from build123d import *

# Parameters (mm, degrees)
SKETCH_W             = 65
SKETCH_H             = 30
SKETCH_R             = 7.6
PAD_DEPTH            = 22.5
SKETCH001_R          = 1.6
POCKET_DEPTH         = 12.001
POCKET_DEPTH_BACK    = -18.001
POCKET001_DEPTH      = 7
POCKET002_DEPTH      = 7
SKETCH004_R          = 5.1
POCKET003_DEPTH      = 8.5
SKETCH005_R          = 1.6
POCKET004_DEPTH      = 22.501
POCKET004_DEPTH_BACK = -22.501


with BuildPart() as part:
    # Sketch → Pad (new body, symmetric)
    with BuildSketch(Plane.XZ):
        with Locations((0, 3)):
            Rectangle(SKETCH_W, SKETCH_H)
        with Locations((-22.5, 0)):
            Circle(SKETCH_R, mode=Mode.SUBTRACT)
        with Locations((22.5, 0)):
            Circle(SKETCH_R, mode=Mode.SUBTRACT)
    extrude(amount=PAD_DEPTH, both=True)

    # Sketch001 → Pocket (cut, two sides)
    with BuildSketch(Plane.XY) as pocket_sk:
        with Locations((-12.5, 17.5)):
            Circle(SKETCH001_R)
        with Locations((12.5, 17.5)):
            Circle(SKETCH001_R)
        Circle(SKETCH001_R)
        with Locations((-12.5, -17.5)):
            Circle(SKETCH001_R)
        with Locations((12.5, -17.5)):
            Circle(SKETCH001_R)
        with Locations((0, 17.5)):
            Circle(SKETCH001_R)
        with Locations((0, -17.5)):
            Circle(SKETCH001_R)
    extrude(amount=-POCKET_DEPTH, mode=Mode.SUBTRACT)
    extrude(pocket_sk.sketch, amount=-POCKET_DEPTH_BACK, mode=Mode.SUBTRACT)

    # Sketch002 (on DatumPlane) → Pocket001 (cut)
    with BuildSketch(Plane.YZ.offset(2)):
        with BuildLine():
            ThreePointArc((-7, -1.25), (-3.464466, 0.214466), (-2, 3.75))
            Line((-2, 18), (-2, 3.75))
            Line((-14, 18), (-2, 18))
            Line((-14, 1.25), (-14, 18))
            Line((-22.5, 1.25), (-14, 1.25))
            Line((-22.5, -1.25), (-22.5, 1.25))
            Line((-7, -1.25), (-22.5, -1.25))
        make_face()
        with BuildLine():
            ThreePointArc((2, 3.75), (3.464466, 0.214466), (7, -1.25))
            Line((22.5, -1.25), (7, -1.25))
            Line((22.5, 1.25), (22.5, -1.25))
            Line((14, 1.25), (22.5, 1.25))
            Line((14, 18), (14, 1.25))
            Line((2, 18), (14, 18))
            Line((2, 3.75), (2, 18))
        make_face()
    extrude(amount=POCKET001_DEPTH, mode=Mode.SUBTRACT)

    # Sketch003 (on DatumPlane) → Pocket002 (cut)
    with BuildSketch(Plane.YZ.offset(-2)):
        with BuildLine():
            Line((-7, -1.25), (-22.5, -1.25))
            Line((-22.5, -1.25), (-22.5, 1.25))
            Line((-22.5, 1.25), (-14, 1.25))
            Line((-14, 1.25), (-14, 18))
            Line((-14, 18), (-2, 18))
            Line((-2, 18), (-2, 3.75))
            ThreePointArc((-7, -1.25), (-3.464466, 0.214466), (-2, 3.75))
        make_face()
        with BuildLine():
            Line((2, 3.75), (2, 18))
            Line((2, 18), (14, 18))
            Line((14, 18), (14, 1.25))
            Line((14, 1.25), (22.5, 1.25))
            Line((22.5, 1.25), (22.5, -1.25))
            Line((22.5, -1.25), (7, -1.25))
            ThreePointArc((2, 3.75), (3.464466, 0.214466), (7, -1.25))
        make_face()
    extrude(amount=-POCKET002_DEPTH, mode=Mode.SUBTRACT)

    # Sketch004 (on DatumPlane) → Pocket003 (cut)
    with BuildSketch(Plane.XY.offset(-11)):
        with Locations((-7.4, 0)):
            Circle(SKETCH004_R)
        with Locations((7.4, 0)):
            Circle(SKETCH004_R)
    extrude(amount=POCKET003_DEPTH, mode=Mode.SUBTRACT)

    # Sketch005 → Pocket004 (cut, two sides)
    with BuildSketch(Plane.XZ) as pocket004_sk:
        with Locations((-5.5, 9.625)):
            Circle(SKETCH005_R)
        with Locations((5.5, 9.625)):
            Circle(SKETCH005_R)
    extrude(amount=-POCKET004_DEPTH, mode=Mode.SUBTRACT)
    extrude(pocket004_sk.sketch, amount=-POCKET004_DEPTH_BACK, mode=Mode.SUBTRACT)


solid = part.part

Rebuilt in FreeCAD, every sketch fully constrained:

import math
import FreeCAD as App
import Part
import Sketcher

doc = App.newDocument("Part")
body = doc.addObject("PartDesign::Body", "Body")

# Sketch on XZ plane
sketch1 = doc.addObject("Sketcher::SketchObject", "Sketch")
body.addObject(sketch1)
sketch1.AttachmentSupport = (doc.XZ_Plane, [""])
sketch1.MapMode = "FlatFace"
sketch1.addGeometry(Part.LineSegment(App.Vector(-32, 18, 0), App.Vector(-32, -12, 0)), False)
sketch1.addGeometry(Part.LineSegment(App.Vector(-32, -12, 0), App.Vector(32, -12, 0)), False)
sketch1.addGeometry(Part.LineSegment(App.Vector(32, -12, 0), App.Vector(32, 18, 0)), False)
sketch1.addGeometry(Part.LineSegment(App.Vector(32, 18, 0), App.Vector(-32, 18, 0)), False)
sketch1.addGeometry(Part.Circle(App.Vector(-22, 0, 0), App.Vector(0, 0, 1), 8), False)
sketch1.addGeometry(Part.Circle(App.Vector(22, 0, 0), App.Vector(0, 0, 1), 8), False)
sketch1.addConstraint(Sketcher.Constraint("Coincident", 0, 2, 1, 1))
sketch1.addConstraint(Sketcher.Constraint("Coincident", 1, 2, 2, 1))
sketch1.addConstraint(Sketcher.Constraint("Coincident", 2, 2, 3, 1))
sketch1.addConstraint(Sketcher.Constraint("Coincident", 3, 2, 0, 1))
sketch1.addConstraint(Sketcher.Constraint("Vertical", 0))
sketch1.addConstraint(Sketcher.Constraint("Horizontal", 1))
sketch1.addConstraint(Sketcher.Constraint("Vertical", 2))
sketch1.addConstraint(Sketcher.Constraint("Horizontal", 3))
sketch1.addConstraint(Sketcher.Constraint("Equal", 4, 5))
sketch1.addConstraint(Sketcher.Constraint("Symmetric", 4, 3, 5, 3, -1, 1))
sketch1.addConstraint(Sketcher.Constraint("PointOnObject", 4, 3, -1))
sketch1.addConstraint(Sketcher.Constraint("Diameter", 4, 15.2))
sketch1.addConstraint(Sketcher.Constraint("DistanceX", 1, 1, 1, 2, 65.0))
sketch1.addConstraint(Sketcher.Constraint("DistanceY", 0, 2, 0, 1, 30.0))
sketch1.addConstraint(Sketcher.Constraint("DistanceY", 0, 2, -1, 1, 12.0))
sketch1.addConstraint(Sketcher.Constraint("DistanceX", 4, 3, 5, 3, 45.0))
sketch1.addConstraint(Sketcher.Constraint("DistanceX", 0, 2, 4, 3, 10.0))
pad1 = doc.addObject("PartDesign::Pad", "Pad")
body.addObject(pad1)
pad1.Profile = sketch1
pad1.Length = 45
pad1.Midplane = True

# Sketch on XY plane
sketch2 = doc.addObject("Sketcher::SketchObject", "Sketch001")
body.addObject(sketch2)
sketch2.AttachmentSupport = (doc.XY_Plane, [""])
sketch2.MapMode = "FlatFace"
sketch2.addGeometry(Part.Circle(App.Vector(-12.5, 17.5, 0), App.Vector(0, 0, 1), 1.6), False)
sketch2.addGeometry(Part.Circle(App.Vector(12.5, 17.5, 0), App.Vector(0, 0, 1), 1.6), False)
sketch2.addGeometry(Part.Circle(App.Vector(0, 0, 0), App.Vector(0, 0, 1), 1.6), False)
sketch2.addGeometry(Part.Circle(App.Vector(-12.5, -17.5, 0), App.Vector(0, 0, 1), 1.6), False)
sketch2.addGeometry(Part.Circle(App.Vector(12.5, -17.5, 0), App.Vector(0, 0, 1), 1.6), False)
sketch2.addGeometry(Part.Circle(App.Vector(0, 17.5, 0), App.Vector(0, 0, 1), 1.6), False)
sketch2.addGeometry(Part.Circle(App.Vector(0, -17.5, 0), App.Vector(0, 0, 1), 1.6), False)
sketch2.addConstraint(Sketcher.Constraint("Coincident", 2, 3, -1, 1))
sketch2.addConstraint(Sketcher.Constraint("Equal", 0, 1))
sketch2.addConstraint(Sketcher.Constraint("Equal", 1, 2))
sketch2.addConstraint(Sketcher.Constraint("Equal", 2, 3))
sketch2.addConstraint(Sketcher.Constraint("Equal", 3, 4))
sketch2.addConstraint(Sketcher.Constraint("Equal", 4, 5))
sketch2.addConstraint(Sketcher.Constraint("Equal", 5, 6))
sketch2.addConstraint(Sketcher.Constraint("Symmetric", 1, 3, 3, 3, -1, 1))
sketch2.addConstraint(Sketcher.Constraint("Symmetric", 0, 3, 4, 3, -1, 1))
sketch2.addConstraint(Sketcher.Constraint("Symmetric", 5, 3, 6, 3, -1, 1))
sketch2.addConstraint(Sketcher.Constraint("Symmetric", 0, 3, 1, 3, -2))
sketch2.addConstraint(Sketcher.Constraint("PointOnObject", 5, 3, -2))
sketch2.addConstraint(Sketcher.Constraint("Horizontal", 1, 3, 5, 3))
sketch2.addConstraint(Sketcher.Constraint("Diameter", 0, 3.2))
sketch2.addConstraint(Sketcher.Constraint("DistanceX", 0, 3, 1, 3, 25.0))
sketch2.addConstraint(Sketcher.Constraint("DistanceY", 3, 3, 0, 3, 35.0))
pocket1 = doc.addObject("PartDesign::Pocket", "Pocket")
body.addObject(pocket1)
pocket1.Profile = sketch2
pocket1.Type = "ThroughAll"
pocket1.Midplane = True

# Sketch on YZ plane
sketch3 = doc.addObject("Sketcher::SketchObject", "Sketch002")
body.addObject(sketch3)
sketch3.AttachmentSupport = (doc.YZ_Plane, [""])
sketch3.MapMode = "FlatFace"
sketch3.AttachmentOffset = App.Placement(App.Vector(0, 0, 2), App.Rotation())
sketch3.addGeometry(Part.ArcOfCircle(Part.Circle(App.Vector(-7, 3.7, 0), App.Vector(0, 0, 1), 5), math.radians(-90), math.radians(0)), False)
sketch3.addGeometry(Part.LineSegment(App.Vector(-2, 3.8, 0), App.Vector(-2, 18, 0)), False)
sketch3.addGeometry(Part.LineSegment(App.Vector(-2, 18, 0), App.Vector(-14, 18, 0)), False)
sketch3.addGeometry(Part.LineSegment(App.Vector(-14, 18, 0), App.Vector(-14, 1.2, 0)), False)
sketch3.addGeometry(Part.LineSegment(App.Vector(-14, 1.2, 0), App.Vector(-22.5, 1.2, 0)), False)
sketch3.addGeometry(Part.LineSegment(App.Vector(-22.5, 1.2, 0), App.Vector(-22.5, -1.2, 0)), False)
sketch3.addGeometry(Part.LineSegment(App.Vector(-22.5, -1.2, 0), App.Vector(-7, -1.2, 0)), False)
sketch3.addGeometry(Part.ArcOfCircle(Part.Circle(App.Vector(7, 3.7, 0), App.Vector(0, 0, 1), 5), math.radians(180), math.radians(270)), False)
sketch3.addGeometry(Part.LineSegment(App.Vector(7, -1.2, 0), App.Vector(22.5, -1.2, 0)), False)
sketch3.addGeometry(Part.LineSegment(App.Vector(22.5, -1.2, 0), App.Vector(22.5, 1.2, 0)), False)
sketch3.addGeometry(Part.LineSegment(App.Vector(22.5, 1.2, 0), App.Vector(14, 1.2, 0)), False)
sketch3.addGeometry(Part.LineSegment(App.Vector(14, 1.2, 0), App.Vector(14, 18, 0)), False)
sketch3.addGeometry(Part.LineSegment(App.Vector(14, 18, 0), App.Vector(2, 18, 0)), False)
sketch3.addGeometry(Part.LineSegment(App.Vector(2, 18, 0), App.Vector(2, 3.8, 0)), False)
sketch3.addConstraint(Sketcher.Constraint("Tangent", 0, 2, 1, 1))
sketch3.addConstraint(Sketcher.Constraint("Coincident", 1, 2, 2, 1))
sketch3.addConstraint(Sketcher.Constraint("Coincident", 2, 2, 3, 1))
sketch3.addConstraint(Sketcher.Constraint("Coincident", 3, 2, 4, 1))
sketch3.addConstraint(Sketcher.Constraint("Coincident", 4, 2, 5, 1))
sketch3.addConstraint(Sketcher.Constraint("Coincident", 5, 2, 6, 1))
sketch3.addConstraint(Sketcher.Constraint("Tangent", 6, 2, 0, 1))
sketch3.addConstraint(Sketcher.Constraint("Tangent", 7, 2, 8, 1))
sketch3.addConstraint(Sketcher.Constraint("Coincident", 8, 2, 9, 1))
sketch3.addConstraint(Sketcher.Constraint("Coincident", 9, 2, 10, 1))
sketch3.addConstraint(Sketcher.Constraint("Coincident", 10, 2, 11, 1))
sketch3.addConstraint(Sketcher.Constraint("Coincident", 11, 2, 12, 1))
sketch3.addConstraint(Sketcher.Constraint("Coincident", 12, 2, 13, 1))
sketch3.addConstraint(Sketcher.Constraint("Tangent", 13, 2, 7, 1))
sketch3.addConstraint(Sketcher.Constraint("Vertical", 1))
sketch3.addConstraint(Sketcher.Constraint("Horizontal", 2))
sketch3.addConstraint(Sketcher.Constraint("Vertical", 3))
sketch3.addConstraint(Sketcher.Constraint("Horizontal", 4))
sketch3.addConstraint(Sketcher.Constraint("Vertical", 5))
sketch3.addConstraint(Sketcher.Constraint("Horizontal", 6))
sketch3.addConstraint(Sketcher.Constraint("Horizontal", 8))
sketch3.addConstraint(Sketcher.Constraint("Vertical", 9))
sketch3.addConstraint(Sketcher.Constraint("Horizontal", 10))
sketch3.addConstraint(Sketcher.Constraint("Vertical", 11))
sketch3.addConstraint(Sketcher.Constraint("Horizontal", 12))
sketch3.addConstraint(Sketcher.Constraint("Vertical", 13))
sketch3.addConstraint(Sketcher.Constraint("Equal", 0, 7))
sketch3.addConstraint(Sketcher.Constraint("Symmetric", 4, 2, 8, 2, -1, 1))
sketch3.addConstraint(Sketcher.Constraint("Symmetric", 0, 3, 7, 3, -2))
sketch3.addConstraint(Sketcher.Constraint("Symmetric", 3, 2, 10, 2, -2))
sketch3.addConstraint(Sketcher.Constraint("Horizontal", 2, 2, 11, 2))
sketch3.addConstraint(Sketcher.Constraint("Radius", 0, 5.0))
sketch3.addConstraint(Sketcher.Constraint("DistanceX", 2, 2, 2, 1, 12.0))
sketch3.addConstraint(Sketcher.Constraint("DistanceX", 4, 2, 4, 1, 8.5))
sketch3.addConstraint(Sketcher.Constraint("DistanceY", 5, 2, 5, 1, 2.5))
sketch3.addConstraint(Sketcher.Constraint("DistanceX", 0, 3, -1, 1, 7.0))
sketch3.addConstraint(Sketcher.Constraint("DistanceY", -1, 1, 1, 2, 18.0))
pocket2 = doc.addObject("PartDesign::Pocket", "Pocket001")
body.addObject(pocket2)
pocket2.Profile = sketch3
pocket2.Length = 7
pocket2.Reversed = True

# Sketch on YZ plane
sketch4 = doc.addObject("Sketcher::SketchObject", "Sketch003")
body.addObject(sketch4)
sketch4.AttachmentSupport = (doc.YZ_Plane, [""])
sketch4.MapMode = "FlatFace"
sketch4.AttachmentOffset = App.Placement(App.Vector(0, 0, -2), App.Rotation())
sketch4.addGeometry(Part.LineSegment(App.Vector(-22.5, -1.2, 0), App.Vector(-7, -1.2, 0)), False)
sketch4.addGeometry(Part.ArcOfCircle(Part.Circle(App.Vector(-7, 3.7, 0), App.Vector(0, 0, 1), 5), math.radians(-90), math.radians(0)), False)
sketch4.addGeometry(Part.LineSegment(App.Vector(-2, 3.8, 0), App.Vector(-2, 18, 0)), False)
sketch4.addGeometry(Part.LineSegment(App.Vector(-2, 18, 0), App.Vector(-14, 18, 0)), False)
sketch4.addGeometry(Part.LineSegment(App.Vector(-14, 18, 0), App.Vector(-14, 1.2, 0)), False)
sketch4.addGeometry(Part.LineSegment(App.Vector(-14, 1.2, 0), App.Vector(-22.5, 1.2, 0)), False)
sketch4.addGeometry(Part.LineSegment(App.Vector(-22.5, 1.2, 0), App.Vector(-22.5, -1.2, 0)), False)
sketch4.addGeometry(Part.LineSegment(App.Vector(2, 18, 0), App.Vector(2, 3.8, 0)), False)
sketch4.addGeometry(Part.ArcOfCircle(Part.Circle(App.Vector(7, 3.7, 0), App.Vector(0, 0, 1), 5), math.radians(180), math.radians(270)), False)
sketch4.addGeometry(Part.LineSegment(App.Vector(7, -1.2, 0), App.Vector(22.5, -1.2, 0)), False)
sketch4.addGeometry(Part.LineSegment(App.Vector(22.5, -1.2, 0), App.Vector(22.5, 1.2, 0)), False)
sketch4.addGeometry(Part.LineSegment(App.Vector(22.5, 1.2, 0), App.Vector(14, 1.2, 0)), False)
sketch4.addGeometry(Part.LineSegment(App.Vector(14, 1.2, 0), App.Vector(14, 18, 0)), False)
sketch4.addGeometry(Part.LineSegment(App.Vector(14, 18, 0), App.Vector(2, 18, 0)), False)
sketch4.addConstraint(Sketcher.Constraint("Tangent", 0, 2, 1, 1))
sketch4.addConstraint(Sketcher.Constraint("Tangent", 1, 2, 2, 1))
sketch4.addConstraint(Sketcher.Constraint("Coincident", 2, 2, 3, 1))
sketch4.addConstraint(Sketcher.Constraint("Coincident", 3, 2, 4, 1))
sketch4.addConstraint(Sketcher.Constraint("Coincident", 4, 2, 5, 1))
sketch4.addConstraint(Sketcher.Constraint("Coincident", 5, 2, 6, 1))
sketch4.addConstraint(Sketcher.Constraint("Coincident", 6, 2, 0, 1))
sketch4.addConstraint(Sketcher.Constraint("Tangent", 7, 2, 8, 1))
sketch4.addConstraint(Sketcher.Constraint("Tangent", 8, 2, 9, 1))
sketch4.addConstraint(Sketcher.Constraint("Coincident", 9, 2, 10, 1))
sketch4.addConstraint(Sketcher.Constraint("Coincident", 10, 2, 11, 1))
sketch4.addConstraint(Sketcher.Constraint("Coincident", 11, 2, 12, 1))
sketch4.addConstraint(Sketcher.Constraint("Coincident", 12, 2, 13, 1))
sketch4.addConstraint(Sketcher.Constraint("Coincident", 13, 2, 7, 1))
sketch4.addConstraint(Sketcher.Constraint("Horizontal", 0))
sketch4.addConstraint(Sketcher.Constraint("Vertical", 2))
sketch4.addConstraint(Sketcher.Constraint("Horizontal", 3))
sketch4.addConstraint(Sketcher.Constraint("Vertical", 4))
sketch4.addConstraint(Sketcher.Constraint("Horizontal", 5))
sketch4.addConstraint(Sketcher.Constraint("Vertical", 6))
sketch4.addConstraint(Sketcher.Constraint("Vertical", 7))
sketch4.addConstraint(Sketcher.Constraint("Horizontal", 9))
sketch4.addConstraint(Sketcher.Constraint("Vertical", 10))
sketch4.addConstraint(Sketcher.Constraint("Horizontal", 11))
sketch4.addConstraint(Sketcher.Constraint("Vertical", 12))
sketch4.addConstraint(Sketcher.Constraint("Horizontal", 13))
sketch4.addConstraint(Sketcher.Constraint("Equal", 1, 8))
sketch4.addConstraint(Sketcher.Constraint("Symmetric", 5, 2, 9, 2, -1, 1))
sketch4.addConstraint(Sketcher.Constraint("Symmetric", 1, 3, 8, 3, -2))
sketch4.addConstraint(Sketcher.Constraint("Symmetric", 4, 2, 11, 2, -2))
sketch4.addConstraint(Sketcher.Constraint("Horizontal", 3, 2, 12, 2))
sketch4.addConstraint(Sketcher.Constraint("Radius", 1, 5.0))
sketch4.addConstraint(Sketcher.Constraint("DistanceX", 3, 2, 3, 1, 12.0))
sketch4.addConstraint(Sketcher.Constraint("DistanceX", 0, 1, 0, 2, 15.5))
sketch4.addConstraint(Sketcher.Constraint("DistanceY", 6, 2, 6, 1, 2.5))
sketch4.addConstraint(Sketcher.Constraint("DistanceX", 1, 3, -1, 1, 7.0))
sketch4.addConstraint(Sketcher.Constraint("DistanceY", -1, 1, 2, 2, 18.0))
pocket3 = doc.addObject("PartDesign::Pocket", "Pocket002")
body.addObject(pocket3)
pocket3.Profile = sketch4
pocket3.Length = 7

# Sketch on XY plane
sketch5 = doc.addObject("Sketcher::SketchObject", "Sketch004")
body.addObject(sketch5)
sketch5.AttachmentSupport = (doc.XY_Plane, [""])
sketch5.MapMode = "FlatFace"
sketch5.AttachmentOffset = App.Placement(App.Vector(0, 0, -11), App.Rotation())
sketch5.addGeometry(Part.Circle(App.Vector(-7, 0, 0), App.Vector(0, 0, 1), 5), False)
sketch5.addGeometry(Part.Circle(App.Vector(7, 0, 0), App.Vector(0, 0, 1), 5), False)
sketch5.addConstraint(Sketcher.Constraint("Equal", 0, 1))
sketch5.addConstraint(Sketcher.Constraint("Symmetric", 0, 3, 1, 3, -1, 1))
sketch5.addConstraint(Sketcher.Constraint("PointOnObject", 0, 3, -1))
sketch5.addConstraint(Sketcher.Constraint("Diameter", 0, 10.2))
sketch5.addConstraint(Sketcher.Constraint("DistanceX", 0, 3, -1, 1, 7.4))
pocket4 = doc.addObject("PartDesign::Pocket", "Pocket003")
body.addObject(pocket4)
pocket4.Profile = sketch5
pocket4.Length = 8.5
pocket4.Reversed = True

# Sketch on XZ plane
sketch6 = doc.addObject("Sketcher::SketchObject", "Sketch005")
body.addObject(sketch6)
sketch6.AttachmentSupport = (doc.XZ_Plane, [""])
sketch6.MapMode = "FlatFace"
sketch6.addGeometry(Part.Circle(App.Vector(-5.5, 9.6, 0), App.Vector(0, 0, 1), 1.6), False)
sketch6.addGeometry(Part.Circle(App.Vector(5.5, 9.6, 0), App.Vector(0, 0, 1), 1.6), False)
sketch6.addConstraint(Sketcher.Constraint("Equal", 0, 1))
sketch6.addConstraint(Sketcher.Constraint("Symmetric", 0, 3, 1, 3, -2))
sketch6.addConstraint(Sketcher.Constraint("Diameter", 0, 3.2))
sketch6.addConstraint(Sketcher.Constraint("DistanceX", 0, 3, 1, 3, 11.0))
sketch6.addConstraint(Sketcher.Constraint("DistanceY", -1, 1, 0, 3, 9.625))
pocket5 = doc.addObject("PartDesign::Pocket", "Pocket004")
body.addObject(pocket5)
pocket5.Profile = sketch6
pocket5.Type = "ThroughAll"
pocket5.Midplane = True

doc.recompute()
